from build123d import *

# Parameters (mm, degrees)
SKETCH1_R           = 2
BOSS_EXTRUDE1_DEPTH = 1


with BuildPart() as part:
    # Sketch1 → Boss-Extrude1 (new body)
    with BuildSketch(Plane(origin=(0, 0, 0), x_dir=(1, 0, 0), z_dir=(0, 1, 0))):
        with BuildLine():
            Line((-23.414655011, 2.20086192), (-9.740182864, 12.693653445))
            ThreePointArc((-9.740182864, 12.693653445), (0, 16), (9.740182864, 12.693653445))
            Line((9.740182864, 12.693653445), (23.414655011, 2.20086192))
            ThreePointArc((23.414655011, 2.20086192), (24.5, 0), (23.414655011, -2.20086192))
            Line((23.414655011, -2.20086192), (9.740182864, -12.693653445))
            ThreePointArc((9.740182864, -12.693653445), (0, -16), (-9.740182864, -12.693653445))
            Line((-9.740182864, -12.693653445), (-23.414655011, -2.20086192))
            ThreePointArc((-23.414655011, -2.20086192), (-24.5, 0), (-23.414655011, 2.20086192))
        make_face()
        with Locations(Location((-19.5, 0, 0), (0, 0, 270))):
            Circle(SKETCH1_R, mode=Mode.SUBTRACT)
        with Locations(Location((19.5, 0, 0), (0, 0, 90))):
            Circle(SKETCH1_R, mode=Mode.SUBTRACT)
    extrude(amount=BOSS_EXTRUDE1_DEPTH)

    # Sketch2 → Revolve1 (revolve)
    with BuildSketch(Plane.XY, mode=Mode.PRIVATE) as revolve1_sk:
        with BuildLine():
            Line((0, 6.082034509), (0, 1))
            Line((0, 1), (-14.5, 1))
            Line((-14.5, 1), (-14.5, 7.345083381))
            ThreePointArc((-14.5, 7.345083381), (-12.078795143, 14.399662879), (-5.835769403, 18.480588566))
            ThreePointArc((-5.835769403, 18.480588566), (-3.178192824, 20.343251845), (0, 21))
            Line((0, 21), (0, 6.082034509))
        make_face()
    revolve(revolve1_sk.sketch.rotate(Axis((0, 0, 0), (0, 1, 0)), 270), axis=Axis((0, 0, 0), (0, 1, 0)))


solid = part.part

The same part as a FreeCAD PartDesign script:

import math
import FreeCAD as App
import Part
import Sketcher

V = App.Vector
Q = App.Units.Quantity

doc = App.newDocument("Part")
body = doc.addObject("PartDesign::Body", "Body")

# Sketch on XZ plane
sketch1 = doc.addObject("Sketcher::SketchObject", "Sketch")
body.addObject(sketch1)
sketch1.AttachmentSupport = (doc.XZ_Plane, [""])
sketch1.MapMode = "FlatFace"
sketch1.addGeometry(Part.LineSegment(V(-9.740183, -12.693653, 0), V(-23.414655, -2.200862, 0)), False)
sketch1.addGeometry(Part.ArcOfCircle(Part.Circle(V(-21.725874, 0, 0), V(0, 0, 1), 2.774126), math.radians(127.5), math.radians(232.5)), False)
sketch1.addGeometry(Part.LineSegment(V(-23.414655, 2.200862, 0), V(-9.740183, 12.693653, 0)), False)
sketch1.addGeometry(Part.ArcOfCircle(Part.Circle(V(0, 0, 0), V(0, 0, 1), 16), math.radians(52.5), math.radians(127.5)), False)
sketch1.addGeometry(Part.LineSegment(V(9.740183, 12.693653, 0), V(23.414655, 2.200862, 0)), False)
sketch1.addGeometry(Part.ArcOfCircle(Part.Circle(V(21.725874, 0, 0), V(0, 0, 1), 2.774126), math.radians(-52.5), math.radians(52.5)), False)
sketch1.addGeometry(Part.LineSegment(V(23.414655, -2.200862, 0), V(9.740183, -12.693653, 0)), False)
sketch1.addGeometry(Part.ArcOfCircle(Part.Circle(V(0, 0, 0), V(0, 0, 1), 16), math.radians(-127.5), math.radians(-52.5)), False)
sketch1.addGeometry(Part.Circle(V(19.5, 0, 0), V(0, 0, 1), 2), False)
sketch1.addGeometry(Part.Circle(V(-19.5, 0, 0), V(0, 0, 1), 2), False)
sketch1.addConstraint(Sketcher.Constraint("Tangent", 0, 2, 1, 2))
sketch1.addConstraint(Sketcher.Constraint("Tangent", 1, 1, 2, 1))
sketch1.addConstraint(Sketcher.Constraint("Tangent", 2, 2, 3, 2))
sketch1.addConstraint(Sketcher.Constraint("Tangent", 3, 1, 4, 1))
sketch1.addConstraint(Sketcher.Constraint("Tangent", 4, 2, 5, 2))
sketch1.addConstraint(Sketcher.Constraint("Tangent", 5, 1, 6, 1))
sketch1.addConstraint(Sketcher.Constraint("Tangent", 6, 2, 7, 2))
sketch1.addConstraint(Sketcher.Constraint("Tangent", 7, 1, 0, 1))
sketch1.addConstraint(Sketcher.Constraint("Coincident", 3, 3, -1, 1))
sketch1.addConstraint(Sketcher.Constraint("Coincident", 7, 3, -1, 1))
sketch1.addConstraint(Sketcher.Constraint("Equal", 1, 5))
sketch1.addConstraint(Sketcher.Constraint("Equal", 3, 7))
sketch1.addConstraint(Sketcher.Constraint("Equal", 8, 9))
sketch1.addConstraint(Sketcher.Constraint("Symmetric", 1, 3, 5, 3, -1, 1))
sketch1.addConstraint(Sketcher.Constraint("Symmetric", 8, 3, 9, 3, -1, 1))
sketch1.addConstraint(Sketcher.Constraint("PointOnObject", 1, 3, -1))
sketch1.addConstraint(Sketcher.Constraint("PointOnObject", 8, 3, -1))
sketch1.addConstraint(Sketcher.Constraint("Diameter", 8, Q("4 mm")))
sketch1.addConstraint(Sketcher.Constraint("Radius", 3, Q("16 mm")))
sketch1.addConstraint(Sketcher.Constraint("Angle", 0, Q("142.5 deg")))
sketch1.addConstraint(Sketcher.Constraint("DistanceX", 9, 3, 8, 3, Q("39 mm")))
sketch1.addConstraint(Sketcher.Constraint("Radius", 1, Q("2.774126 mm")))
pad1 = doc.addObject("PartDesign::Pad", "Pad")
body.addObject(pad1)
pad1.Profile = sketch1
pad1.Length = 1
pad1.Reversed = True

# Sketch on XY plane
sketch2 = doc.addObject("Sketcher::SketchObject", "Sketch001")
body.addObject(sketch2)
sketch2.AttachmentSupport = (doc.XY_Plane, [""])
sketch2.MapMode = "FlatFace"
sketch2.addGeometry(Part.LineSegment(V(-14.5, 1, 0), V(0, 1, 0)), False)
sketch2.addGeometry(Part.LineSegment(V(0, 1, 0), V(0, 21, 0)), False)
sketch2.addGeometry(Part.ArcOfCircle(Part.Circle(V(0, 12.981532, 0), V(0, 0, 1), 8.018468), math.radians(90), math.radians(136.701532)), False)
sketch2.addGeometry(Part.ArcOfCircle(Part.Circle(V(-3.012057, 7.345083, 0), V(0, 0, 1), 11.487943), math.radians(104.228991), math.radians(180)), False)
sketch2.addGeometry(Part.LineSegment(V(-14.5, 7.345083, 0), V(-14.5, 1, 0)), False)
sketch2.addConstraint(Sketcher.Constraint("Coincident", 0, 2, 1, 1))
sketch2.addConstraint(Sketcher.Constraint("Coincident", 1, 2, 2, 1))
sketch2.addConstraint(Sketcher.Constraint("Coincident", 2, 2, 3, 1))
sketch2.addConstraint(Sketcher.Constraint("Tangent", 3, 2, 4, 1))
sketch2.addConstraint(Sketcher.Constraint("Coincident", 4, 2, 0, 1))
sketch2.addConstraint(Sketcher.Constraint("Horizontal", 0))
sketch2.addConstraint(Sketcher.Constraint("Vertical", 1))
sketch2.addConstraint(Sketcher.Constraint("Vertical", 4))
sketch2.addConstraint(Sketcher.Constraint("PointOnObject", 2, 3, -2))
sketch2.addConstraint(Sketcher.Constraint("PointOnObject", 0, 2, -2))
sketch2.addConstraint(Sketcher.Constraint("DistanceY", 1, 1, 1, 2, Q("20 mm")))
sketch2.addConstraint(Sketcher.Constraint("DistanceX", 0, 1, 0, 2, Q("14.5 mm")))
sketch2.addConstraint(Sketcher.Constraint("DistanceY", -1, 1, 0, 2, Q("1 mm")))
sketch2.addConstraint(Sketcher.Constraint("Radius", 2, Q("8.018468 mm")))
sketch2.addConstraint(Sketcher.Constraint("Radius", 3, Q("11.487943 mm")))
sketch2.addConstraint(Sketcher.Constraint("DistanceY", 4, 2, 4, 1, Q("6.345083 mm")))
revolution = doc.addObject("PartDesign::Revolution", "Revolution")
body.addObject(revolution)
revolution.Profile = sketch2
revolution.ReferenceAxis = (sketch2, ["V_Axis"])
revolution.Angle = 360

doc.recompute()
